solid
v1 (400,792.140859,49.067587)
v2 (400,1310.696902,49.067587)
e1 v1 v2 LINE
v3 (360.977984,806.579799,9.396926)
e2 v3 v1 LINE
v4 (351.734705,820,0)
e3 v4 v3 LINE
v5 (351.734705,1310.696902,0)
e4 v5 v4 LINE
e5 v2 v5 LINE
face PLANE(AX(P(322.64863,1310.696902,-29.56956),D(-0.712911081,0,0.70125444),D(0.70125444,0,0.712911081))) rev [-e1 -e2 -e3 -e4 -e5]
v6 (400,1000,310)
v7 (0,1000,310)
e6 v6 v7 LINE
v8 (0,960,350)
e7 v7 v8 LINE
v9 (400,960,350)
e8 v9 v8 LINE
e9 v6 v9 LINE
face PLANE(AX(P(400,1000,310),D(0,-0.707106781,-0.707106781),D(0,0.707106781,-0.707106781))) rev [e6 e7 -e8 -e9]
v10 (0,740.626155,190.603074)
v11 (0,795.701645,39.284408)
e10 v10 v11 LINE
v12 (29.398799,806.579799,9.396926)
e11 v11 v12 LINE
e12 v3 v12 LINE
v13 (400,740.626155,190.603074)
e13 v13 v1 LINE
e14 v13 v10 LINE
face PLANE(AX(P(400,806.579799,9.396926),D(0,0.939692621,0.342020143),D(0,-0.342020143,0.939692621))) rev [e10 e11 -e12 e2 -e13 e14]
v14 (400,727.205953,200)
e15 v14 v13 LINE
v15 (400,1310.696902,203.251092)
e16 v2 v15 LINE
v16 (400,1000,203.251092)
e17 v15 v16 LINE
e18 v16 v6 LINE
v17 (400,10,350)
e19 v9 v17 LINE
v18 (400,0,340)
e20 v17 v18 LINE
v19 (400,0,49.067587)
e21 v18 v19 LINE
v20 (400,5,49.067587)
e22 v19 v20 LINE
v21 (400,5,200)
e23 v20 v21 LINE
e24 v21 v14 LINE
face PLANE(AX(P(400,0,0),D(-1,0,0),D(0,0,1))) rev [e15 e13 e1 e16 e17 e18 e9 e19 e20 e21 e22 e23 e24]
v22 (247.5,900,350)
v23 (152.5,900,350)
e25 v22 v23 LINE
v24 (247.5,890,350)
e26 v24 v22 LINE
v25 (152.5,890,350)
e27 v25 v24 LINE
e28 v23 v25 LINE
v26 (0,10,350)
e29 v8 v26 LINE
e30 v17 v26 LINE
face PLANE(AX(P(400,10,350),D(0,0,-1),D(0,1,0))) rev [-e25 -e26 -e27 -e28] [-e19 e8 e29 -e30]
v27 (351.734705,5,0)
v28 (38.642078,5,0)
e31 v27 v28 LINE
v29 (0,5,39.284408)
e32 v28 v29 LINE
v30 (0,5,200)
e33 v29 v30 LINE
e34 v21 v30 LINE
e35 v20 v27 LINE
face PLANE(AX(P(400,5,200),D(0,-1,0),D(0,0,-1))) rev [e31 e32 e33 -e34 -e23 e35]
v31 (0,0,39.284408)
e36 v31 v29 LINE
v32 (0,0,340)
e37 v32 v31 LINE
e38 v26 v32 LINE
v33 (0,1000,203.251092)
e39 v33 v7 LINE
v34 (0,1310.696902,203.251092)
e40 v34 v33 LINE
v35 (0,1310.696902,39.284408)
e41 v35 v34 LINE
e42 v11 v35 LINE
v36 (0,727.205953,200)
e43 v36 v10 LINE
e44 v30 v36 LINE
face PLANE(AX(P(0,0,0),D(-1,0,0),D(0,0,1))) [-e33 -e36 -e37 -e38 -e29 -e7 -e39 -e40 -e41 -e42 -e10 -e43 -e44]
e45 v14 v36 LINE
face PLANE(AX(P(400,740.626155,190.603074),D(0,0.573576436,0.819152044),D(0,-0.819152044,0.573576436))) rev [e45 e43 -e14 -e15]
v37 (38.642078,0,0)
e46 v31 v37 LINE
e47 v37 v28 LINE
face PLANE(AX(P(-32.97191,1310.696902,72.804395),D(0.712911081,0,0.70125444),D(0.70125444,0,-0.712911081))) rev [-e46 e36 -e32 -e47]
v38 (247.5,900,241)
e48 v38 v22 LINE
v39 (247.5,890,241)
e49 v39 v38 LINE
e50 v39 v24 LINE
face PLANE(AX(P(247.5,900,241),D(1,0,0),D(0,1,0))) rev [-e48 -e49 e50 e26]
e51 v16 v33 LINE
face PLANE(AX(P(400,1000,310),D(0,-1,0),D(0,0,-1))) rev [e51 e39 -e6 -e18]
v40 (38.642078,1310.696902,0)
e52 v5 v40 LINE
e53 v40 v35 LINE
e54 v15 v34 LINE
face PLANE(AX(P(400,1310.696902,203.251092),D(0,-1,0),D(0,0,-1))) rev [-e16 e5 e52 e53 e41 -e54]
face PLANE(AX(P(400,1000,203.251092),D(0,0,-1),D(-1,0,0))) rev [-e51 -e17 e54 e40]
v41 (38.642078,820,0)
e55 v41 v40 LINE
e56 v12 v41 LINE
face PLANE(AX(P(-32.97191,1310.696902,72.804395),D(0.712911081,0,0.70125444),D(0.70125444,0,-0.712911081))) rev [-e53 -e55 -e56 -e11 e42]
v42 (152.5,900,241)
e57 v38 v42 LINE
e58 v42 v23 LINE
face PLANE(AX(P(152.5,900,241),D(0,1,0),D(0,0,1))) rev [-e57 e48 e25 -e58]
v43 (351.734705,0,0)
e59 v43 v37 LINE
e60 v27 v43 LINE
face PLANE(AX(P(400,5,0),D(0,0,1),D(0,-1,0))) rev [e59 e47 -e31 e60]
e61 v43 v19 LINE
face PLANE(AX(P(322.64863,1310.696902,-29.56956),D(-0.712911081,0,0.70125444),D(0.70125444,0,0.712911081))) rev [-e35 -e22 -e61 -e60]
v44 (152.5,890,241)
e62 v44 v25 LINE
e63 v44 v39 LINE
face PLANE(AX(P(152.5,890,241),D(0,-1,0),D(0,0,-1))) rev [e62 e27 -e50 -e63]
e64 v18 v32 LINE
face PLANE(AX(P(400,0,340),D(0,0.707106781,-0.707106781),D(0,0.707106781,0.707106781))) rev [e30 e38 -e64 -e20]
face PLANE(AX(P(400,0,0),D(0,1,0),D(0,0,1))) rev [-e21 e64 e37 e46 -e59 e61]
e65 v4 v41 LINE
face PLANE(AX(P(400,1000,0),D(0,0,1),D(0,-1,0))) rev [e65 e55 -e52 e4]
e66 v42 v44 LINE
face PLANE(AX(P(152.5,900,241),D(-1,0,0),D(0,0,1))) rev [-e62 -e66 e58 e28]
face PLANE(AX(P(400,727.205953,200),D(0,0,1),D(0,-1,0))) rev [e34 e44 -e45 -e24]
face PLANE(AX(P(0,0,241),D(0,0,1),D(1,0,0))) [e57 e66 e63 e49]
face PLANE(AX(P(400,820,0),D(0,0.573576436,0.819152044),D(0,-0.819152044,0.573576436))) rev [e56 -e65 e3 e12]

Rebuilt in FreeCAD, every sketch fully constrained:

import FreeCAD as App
import Part
import Sketcher
from FreeCAD import Vector
Q = App.Units.Quantity

doc = App.newDocument("Part")
body = doc.addObject("PartDesign::Body", "Body")

sketch1 = body.newObject("Sketcher::SketchObject", "Sketch")
sketch1.AttachmentSupport = (doc.getObject("YZ_Plane"), [""])
sketch1.MapMode = "FlatFace"
sketch1.addGeometry(Part.LineSegment(Vector(0, 340, 0), Vector(0, 0, 0)), False)
sketch1.addGeometry(Part.LineSegment(Vector(0, 0, 0), Vector(5, 0, 0)), False)
sketch1.addGeometry(Part.LineSegment(Vector(5, 0, 0), Vector(5, 200, 0)), False)
sketch1.addGeometry(Part.LineSegment(Vector(5, 200, 0), Vector(727, 200, 0)), False)
sketch1.addGeometry(Part.LineSegment(Vector(727, 200, 0), Vector(741, 191, 0)), False)
sketch1.addGeometry(Part.LineSegment(Vector(741, 191, 0), Vector(800, 27, 0)), False)
sketch1.addGeometry(Part.LineSegment(Vector(800, 27, 0), Vector(807, 9, 0)), False)
sketch1.addGeometry(Part.LineSegment(Vector(807, 9, 0), Vector(820, 0, 0)), False)
sketch1.addGeometry(Part.LineSegment(Vector(820, 0, 0), Vector(1311, 0, 0)), False)
sketch1.addGeometry(Part.LineSegment(Vector(1311, 0, 0), Vector(1311, 203, 0)), False)
sketch1.addGeometry(Part.LineSegment(Vector(1311, 203, 0), Vector(1000, 203, 0)), False)
sketch1.addGeometry(Part.LineSegment(Vector(1000, 203, 0), Vector(1000, 310, 0)), False)
sketch1.addGeometry(Part.LineSegment(Vector(1000, 310, 0), Vector(960, 350, 0)), False)
sketch1.addGeometry(Part.LineSegment(Vector(960, 350, 0), Vector(10, 350, 0)), False)
sketch1.addGeometry(Part.LineSegment(Vector(10, 350, 0), Vector(0, 340, 0)), False)
sketch1.addConstraint(Sketcher.Constraint("Coincident", 0, 2, 1, 1))
sketch1.addConstraint(Sketcher.Constraint("Coincident", 1, 2, 2, 1))
sketch1.addConstraint(Sketcher.Constraint("Coincident", 2, 2, 3, 1))
sketch1.addConstraint(Sketcher.Constraint("Coincident", 3, 2, 4, 1))
sketch1.addConstraint(Sketcher.Constraint("Coincident", 4, 2, 5, 1))
sketch1.addConstraint(Sketcher.Constraint("Coincident", 5, 2, 6, 1))
sketch1.addConstraint(Sketcher.Constraint("Coincident", 6, 2, 7, 1))
sketch1.addConstraint(Sketcher.Constraint("Coincident", 7, 2, 8, 1))
sketch1.addConstraint(Sketcher.Constraint("Coincident", 8, 2, 9, 1))
sketch1.addConstraint(Sketcher.Constraint("Coincident", 9, 2, 10, 1))
sketch1.addConstraint(Sketcher.Constraint("Coincident", 10, 2, 11, 1))
sketch1.addConstraint(Sketcher.Constraint("Coincident", 11, 2, 12, 1))
sketch1.addConstraint(Sketcher.Constraint("Coincident", 12, 2, 13, 1))
sketch1.addConstraint(Sketcher.Constraint("Coincident", 13, 2, 14, 1))
sketch1.addConstraint(Sketcher.Constraint("Coincident", 14, 2, 0, 1))
sketch1.addConstraint(Sketcher.Constraint("Vertical", 0))
sketch1.addConstraint(Sketcher.Constraint("Horizontal", 1))
sketch1.addConstraint(Sketcher.Constraint("Vertical", 2))
sketch1.addConstraint(Sketcher.Constraint("Horizontal", 3))
sketch1.addConstraint(Sketcher.Constraint("Horizontal", 8))
sketch1.addConstraint(Sketcher.Constraint("Vertical", 9))
sketch1.addConstraint(Sketcher.Constraint("Horizontal", 10))
sketch1.addConstraint(Sketcher.Constraint("Vertical", 11))
sketch1.addConstraint(Sketcher.Constraint("Horizontal", 13))
sketch1.addConstraint(Sketcher.Constraint("Coincident", 0, 2, -1, 1))
sketch1.addConstraint(Sketcher.Constraint("PointOnObject", 7, 2, -1))
sketch1.addConstraint(Sketcher.Constraint("Parallel", 5, 6))
sketch1.addConstraint(Sketcher.Constraint("Parallel", 4, 7))
sketch1.addConstraint(Sketcher.Constraint("Perpendicular", 12, 14))
sketch1.addConstraint(Sketcher.Constraint("Equal", 4, 7))
sketch1.addConstraint(Sketcher.Constraint("DistanceX", 1, 1, 1, 2, 5.0))
sketch1.addConstraint(Sketcher.Constraint("DistanceX", 13, 2, 13, 1, 950.0))
sketch1.addConstraint(Sketcher.Constraint("DistanceY", 0, 2, 0, 1, 340.0))
sketch1.addConstraint(Sketcher.Constraint("DistanceY", 2, 1, 2, 2, 200.0))
sketch1.addConstraint(Sketcher.Constraint("Angle", 4, Q("-35 deg")))
sketch1.addConstraint(Sketcher.Constraint("Angle", 5, Q("-70 deg")))
sketch1.addConstraint(Sketcher.Constraint("Angle", 12, Q("135 deg")))
sketch1.addConstraint(Sketcher.Constraint("DistanceX", -1, 1, 5, 2, 800.0))
sketch1.addConstraint(Sketcher.Constraint("DistanceX", -1, 1, 7, 2, 820.0))
sketch1.addConstraint(Sketcher.Constraint("DistanceX", -1, 1, 10, 2, 1000.0))
sketch1.addConstraint(Sketcher.Constraint("DistanceY", -1, 1, 11, 2, 310.0))
sketch1.addConstraint(Sketcher.Constraint("DistanceY", 9, 1, 9, 2, 203.251092))
sketch1.addConstraint(Sketcher.Constraint("DistanceX", -1, 1, 6, 2, 806.579799))
sketch1.addConstraint(Sketcher.Constraint("DistanceX", 8, 1, 8, 2, 490.696902))
pad1 = body.newObject("PartDesign::Pad", "Pad")
pad1.Profile = sketch1
pad1.Length = 400

sketch2 = body.newObject("Sketcher::SketchObject", "Sketch001")
sketch2.AttachmentSupport = (doc.getObject("XZ_Plane"), [""])
sketch2.MapMode = "FlatFace"
sketch2.addGeometry(Part.LineSegment(Vector(68, -30, 0), Vector(-33, 73, 0)), False)
sketch2.addGeometry(Part.LineSegment(Vector(-33, 73, 0), Vector(-33, -100, 0)), False)
sketch2.addGeometry(Part.LineSegment(Vector(-33, -100, 0), Vector(423, -100, 0)), False)
sketch2.addGeometry(Part.LineSegment(Vector(423, -100, 0), Vector(423, 73, 0)), False)
sketch2.addGeometry(Part.LineSegment(Vector(423, 73, 0), Vector(323, -30, 0)), False)
sketch2.addGeometry(Part.LineSegment(Vector(323, -30, 0), Vector(68, -30, 0)), False)
sketch2.addConstraint(Sketcher.Constraint("Coincident", 0, 2, 1, 1))
sketch2.addConstraint(Sketcher.Constraint("Coincident", 1, 2, 2, 1))
sketch2.addConstraint(Sketcher.Constraint("Coincident", 2, 2, 3, 1))
sketch2.addConstraint(Sketcher.Constraint("Coincident", 3, 2, 4, 1))
sketch2.addConstraint(Sketcher.Constraint("Coincident", 4, 2, 5, 1))
sketch2.addConstraint(Sketcher.Constraint("Coincident", 5, 2, 0, 1))
sketch2.addConstraint(Sketcher.Constraint("Vertical", 1))
sketch2.addConstraint(Sketcher.Constraint("Horizontal", 2))
sketch2.addConstraint(Sketcher.Constraint("Vertical", 3))
sketch2.addConstraint(Sketcher.Constraint("Horizontal", 5))
sketch2.addConstraint(Sketcher.Constraint("Horizontal", 0, 2, 3, 2))
sketch2.addConstraint(Sketcher.Constraint("Equal", 0, 4))
sketch2.addConstraint(Sketcher.Constraint("DistanceX", 2, 1, 2, 2, 456.320603))
sketch2.addConstraint(Sketcher.Constraint("DistanceX", 5, 2, 5, 1, 254.920476))
sketch2.addConstraint(Sketcher.Constraint("DistanceY", 1, 2, 1, 1, 172.873927))
sketch2.addConstraint(Sketcher.Constraint("DistanceX", 0, 2, -1, 1, 32.97191))
sketch2.addConstraint(Sketcher.Constraint("DistanceY", 1, 2, -1, 1, 100.069532))
sketch2.addConstraint(Sketcher.Constraint("DistanceY", 4, 2, -1, 1, 29.56956))
pocket1 = body.newObject("PartDesign::Pocket", "Pocket")
pocket1.Profile = sketch2
pocket1.Type = "ThroughAll"
pocket1.Midplane = True

sketch3 = body.newObject("Sketcher::SketchObject", "Sketch002")
sketch3.AttachmentSupport = (doc.getObject("XY_Plane"), [""])
sketch3.MapMode = "FlatFace"
sketch3.AttachmentOffset = App.Placement(Vector(0, 0, 350), App.Rotation())
sketch3.addGeometry(Part.LineSegment(Vector(152, 900, 0), Vector(152, 890, 0)), False)
sketch3.addGeometry(Part.LineSegment(Vector(152, 890, 0), Vector(248, 890, 0)), False)
sketch3.addGeometry(Part.LineSegment(Vector(248, 890, 0), Vector(248, 900, 0)), False)
sketch3.addGeometry(Part.LineSegment(Vector(248, 900, 0), Vector(152, 900, 0)), False)
sketch3.addConstraint(Sketcher.Constraint("Coincident", 0, 2, 1, 1))
sketch3.addConstraint(Sketcher.Constraint("Coincident", 1, 2, 2, 1))
sketch3.addConstraint(Sketcher.Constraint("Coincident", 2, 2, 3, 1))
sketch3.addConstraint(Sketcher.Constraint("Coincident", 3, 2, 0, 1))
sketch3.addConstraint(Sketcher.Constraint("Vertical", 0))
sketch3.addConstraint(Sketcher.Constraint("Horizontal", 1))
sketch3.addConstraint(Sketcher.Constraint("Vertical", 2))
sketch3.addConstraint(Sketcher.Constraint("Horizontal", 3))
sketch3.addConstraint(Sketcher.Constraint("DistanceX", 1, 1, 1, 2, 95.0))
sketch3.addConstraint(Sketcher.Constraint("DistanceY", 0, 2, 0, 1, 10.0))
sketch3.addConstraint(Sketcher.Constraint("DistanceY", -1, 1, 0, 2, 890.0))
sketch3.addConstraint(Sketcher.Constraint("DistanceX", -1, 1, 0, 2, 152.5))
pocket2 = body.newObject("PartDesign::Pocket", "Pocket001")
pocket2.Profile = sketch3
pocket2.Length = 109

doc.recompute()
